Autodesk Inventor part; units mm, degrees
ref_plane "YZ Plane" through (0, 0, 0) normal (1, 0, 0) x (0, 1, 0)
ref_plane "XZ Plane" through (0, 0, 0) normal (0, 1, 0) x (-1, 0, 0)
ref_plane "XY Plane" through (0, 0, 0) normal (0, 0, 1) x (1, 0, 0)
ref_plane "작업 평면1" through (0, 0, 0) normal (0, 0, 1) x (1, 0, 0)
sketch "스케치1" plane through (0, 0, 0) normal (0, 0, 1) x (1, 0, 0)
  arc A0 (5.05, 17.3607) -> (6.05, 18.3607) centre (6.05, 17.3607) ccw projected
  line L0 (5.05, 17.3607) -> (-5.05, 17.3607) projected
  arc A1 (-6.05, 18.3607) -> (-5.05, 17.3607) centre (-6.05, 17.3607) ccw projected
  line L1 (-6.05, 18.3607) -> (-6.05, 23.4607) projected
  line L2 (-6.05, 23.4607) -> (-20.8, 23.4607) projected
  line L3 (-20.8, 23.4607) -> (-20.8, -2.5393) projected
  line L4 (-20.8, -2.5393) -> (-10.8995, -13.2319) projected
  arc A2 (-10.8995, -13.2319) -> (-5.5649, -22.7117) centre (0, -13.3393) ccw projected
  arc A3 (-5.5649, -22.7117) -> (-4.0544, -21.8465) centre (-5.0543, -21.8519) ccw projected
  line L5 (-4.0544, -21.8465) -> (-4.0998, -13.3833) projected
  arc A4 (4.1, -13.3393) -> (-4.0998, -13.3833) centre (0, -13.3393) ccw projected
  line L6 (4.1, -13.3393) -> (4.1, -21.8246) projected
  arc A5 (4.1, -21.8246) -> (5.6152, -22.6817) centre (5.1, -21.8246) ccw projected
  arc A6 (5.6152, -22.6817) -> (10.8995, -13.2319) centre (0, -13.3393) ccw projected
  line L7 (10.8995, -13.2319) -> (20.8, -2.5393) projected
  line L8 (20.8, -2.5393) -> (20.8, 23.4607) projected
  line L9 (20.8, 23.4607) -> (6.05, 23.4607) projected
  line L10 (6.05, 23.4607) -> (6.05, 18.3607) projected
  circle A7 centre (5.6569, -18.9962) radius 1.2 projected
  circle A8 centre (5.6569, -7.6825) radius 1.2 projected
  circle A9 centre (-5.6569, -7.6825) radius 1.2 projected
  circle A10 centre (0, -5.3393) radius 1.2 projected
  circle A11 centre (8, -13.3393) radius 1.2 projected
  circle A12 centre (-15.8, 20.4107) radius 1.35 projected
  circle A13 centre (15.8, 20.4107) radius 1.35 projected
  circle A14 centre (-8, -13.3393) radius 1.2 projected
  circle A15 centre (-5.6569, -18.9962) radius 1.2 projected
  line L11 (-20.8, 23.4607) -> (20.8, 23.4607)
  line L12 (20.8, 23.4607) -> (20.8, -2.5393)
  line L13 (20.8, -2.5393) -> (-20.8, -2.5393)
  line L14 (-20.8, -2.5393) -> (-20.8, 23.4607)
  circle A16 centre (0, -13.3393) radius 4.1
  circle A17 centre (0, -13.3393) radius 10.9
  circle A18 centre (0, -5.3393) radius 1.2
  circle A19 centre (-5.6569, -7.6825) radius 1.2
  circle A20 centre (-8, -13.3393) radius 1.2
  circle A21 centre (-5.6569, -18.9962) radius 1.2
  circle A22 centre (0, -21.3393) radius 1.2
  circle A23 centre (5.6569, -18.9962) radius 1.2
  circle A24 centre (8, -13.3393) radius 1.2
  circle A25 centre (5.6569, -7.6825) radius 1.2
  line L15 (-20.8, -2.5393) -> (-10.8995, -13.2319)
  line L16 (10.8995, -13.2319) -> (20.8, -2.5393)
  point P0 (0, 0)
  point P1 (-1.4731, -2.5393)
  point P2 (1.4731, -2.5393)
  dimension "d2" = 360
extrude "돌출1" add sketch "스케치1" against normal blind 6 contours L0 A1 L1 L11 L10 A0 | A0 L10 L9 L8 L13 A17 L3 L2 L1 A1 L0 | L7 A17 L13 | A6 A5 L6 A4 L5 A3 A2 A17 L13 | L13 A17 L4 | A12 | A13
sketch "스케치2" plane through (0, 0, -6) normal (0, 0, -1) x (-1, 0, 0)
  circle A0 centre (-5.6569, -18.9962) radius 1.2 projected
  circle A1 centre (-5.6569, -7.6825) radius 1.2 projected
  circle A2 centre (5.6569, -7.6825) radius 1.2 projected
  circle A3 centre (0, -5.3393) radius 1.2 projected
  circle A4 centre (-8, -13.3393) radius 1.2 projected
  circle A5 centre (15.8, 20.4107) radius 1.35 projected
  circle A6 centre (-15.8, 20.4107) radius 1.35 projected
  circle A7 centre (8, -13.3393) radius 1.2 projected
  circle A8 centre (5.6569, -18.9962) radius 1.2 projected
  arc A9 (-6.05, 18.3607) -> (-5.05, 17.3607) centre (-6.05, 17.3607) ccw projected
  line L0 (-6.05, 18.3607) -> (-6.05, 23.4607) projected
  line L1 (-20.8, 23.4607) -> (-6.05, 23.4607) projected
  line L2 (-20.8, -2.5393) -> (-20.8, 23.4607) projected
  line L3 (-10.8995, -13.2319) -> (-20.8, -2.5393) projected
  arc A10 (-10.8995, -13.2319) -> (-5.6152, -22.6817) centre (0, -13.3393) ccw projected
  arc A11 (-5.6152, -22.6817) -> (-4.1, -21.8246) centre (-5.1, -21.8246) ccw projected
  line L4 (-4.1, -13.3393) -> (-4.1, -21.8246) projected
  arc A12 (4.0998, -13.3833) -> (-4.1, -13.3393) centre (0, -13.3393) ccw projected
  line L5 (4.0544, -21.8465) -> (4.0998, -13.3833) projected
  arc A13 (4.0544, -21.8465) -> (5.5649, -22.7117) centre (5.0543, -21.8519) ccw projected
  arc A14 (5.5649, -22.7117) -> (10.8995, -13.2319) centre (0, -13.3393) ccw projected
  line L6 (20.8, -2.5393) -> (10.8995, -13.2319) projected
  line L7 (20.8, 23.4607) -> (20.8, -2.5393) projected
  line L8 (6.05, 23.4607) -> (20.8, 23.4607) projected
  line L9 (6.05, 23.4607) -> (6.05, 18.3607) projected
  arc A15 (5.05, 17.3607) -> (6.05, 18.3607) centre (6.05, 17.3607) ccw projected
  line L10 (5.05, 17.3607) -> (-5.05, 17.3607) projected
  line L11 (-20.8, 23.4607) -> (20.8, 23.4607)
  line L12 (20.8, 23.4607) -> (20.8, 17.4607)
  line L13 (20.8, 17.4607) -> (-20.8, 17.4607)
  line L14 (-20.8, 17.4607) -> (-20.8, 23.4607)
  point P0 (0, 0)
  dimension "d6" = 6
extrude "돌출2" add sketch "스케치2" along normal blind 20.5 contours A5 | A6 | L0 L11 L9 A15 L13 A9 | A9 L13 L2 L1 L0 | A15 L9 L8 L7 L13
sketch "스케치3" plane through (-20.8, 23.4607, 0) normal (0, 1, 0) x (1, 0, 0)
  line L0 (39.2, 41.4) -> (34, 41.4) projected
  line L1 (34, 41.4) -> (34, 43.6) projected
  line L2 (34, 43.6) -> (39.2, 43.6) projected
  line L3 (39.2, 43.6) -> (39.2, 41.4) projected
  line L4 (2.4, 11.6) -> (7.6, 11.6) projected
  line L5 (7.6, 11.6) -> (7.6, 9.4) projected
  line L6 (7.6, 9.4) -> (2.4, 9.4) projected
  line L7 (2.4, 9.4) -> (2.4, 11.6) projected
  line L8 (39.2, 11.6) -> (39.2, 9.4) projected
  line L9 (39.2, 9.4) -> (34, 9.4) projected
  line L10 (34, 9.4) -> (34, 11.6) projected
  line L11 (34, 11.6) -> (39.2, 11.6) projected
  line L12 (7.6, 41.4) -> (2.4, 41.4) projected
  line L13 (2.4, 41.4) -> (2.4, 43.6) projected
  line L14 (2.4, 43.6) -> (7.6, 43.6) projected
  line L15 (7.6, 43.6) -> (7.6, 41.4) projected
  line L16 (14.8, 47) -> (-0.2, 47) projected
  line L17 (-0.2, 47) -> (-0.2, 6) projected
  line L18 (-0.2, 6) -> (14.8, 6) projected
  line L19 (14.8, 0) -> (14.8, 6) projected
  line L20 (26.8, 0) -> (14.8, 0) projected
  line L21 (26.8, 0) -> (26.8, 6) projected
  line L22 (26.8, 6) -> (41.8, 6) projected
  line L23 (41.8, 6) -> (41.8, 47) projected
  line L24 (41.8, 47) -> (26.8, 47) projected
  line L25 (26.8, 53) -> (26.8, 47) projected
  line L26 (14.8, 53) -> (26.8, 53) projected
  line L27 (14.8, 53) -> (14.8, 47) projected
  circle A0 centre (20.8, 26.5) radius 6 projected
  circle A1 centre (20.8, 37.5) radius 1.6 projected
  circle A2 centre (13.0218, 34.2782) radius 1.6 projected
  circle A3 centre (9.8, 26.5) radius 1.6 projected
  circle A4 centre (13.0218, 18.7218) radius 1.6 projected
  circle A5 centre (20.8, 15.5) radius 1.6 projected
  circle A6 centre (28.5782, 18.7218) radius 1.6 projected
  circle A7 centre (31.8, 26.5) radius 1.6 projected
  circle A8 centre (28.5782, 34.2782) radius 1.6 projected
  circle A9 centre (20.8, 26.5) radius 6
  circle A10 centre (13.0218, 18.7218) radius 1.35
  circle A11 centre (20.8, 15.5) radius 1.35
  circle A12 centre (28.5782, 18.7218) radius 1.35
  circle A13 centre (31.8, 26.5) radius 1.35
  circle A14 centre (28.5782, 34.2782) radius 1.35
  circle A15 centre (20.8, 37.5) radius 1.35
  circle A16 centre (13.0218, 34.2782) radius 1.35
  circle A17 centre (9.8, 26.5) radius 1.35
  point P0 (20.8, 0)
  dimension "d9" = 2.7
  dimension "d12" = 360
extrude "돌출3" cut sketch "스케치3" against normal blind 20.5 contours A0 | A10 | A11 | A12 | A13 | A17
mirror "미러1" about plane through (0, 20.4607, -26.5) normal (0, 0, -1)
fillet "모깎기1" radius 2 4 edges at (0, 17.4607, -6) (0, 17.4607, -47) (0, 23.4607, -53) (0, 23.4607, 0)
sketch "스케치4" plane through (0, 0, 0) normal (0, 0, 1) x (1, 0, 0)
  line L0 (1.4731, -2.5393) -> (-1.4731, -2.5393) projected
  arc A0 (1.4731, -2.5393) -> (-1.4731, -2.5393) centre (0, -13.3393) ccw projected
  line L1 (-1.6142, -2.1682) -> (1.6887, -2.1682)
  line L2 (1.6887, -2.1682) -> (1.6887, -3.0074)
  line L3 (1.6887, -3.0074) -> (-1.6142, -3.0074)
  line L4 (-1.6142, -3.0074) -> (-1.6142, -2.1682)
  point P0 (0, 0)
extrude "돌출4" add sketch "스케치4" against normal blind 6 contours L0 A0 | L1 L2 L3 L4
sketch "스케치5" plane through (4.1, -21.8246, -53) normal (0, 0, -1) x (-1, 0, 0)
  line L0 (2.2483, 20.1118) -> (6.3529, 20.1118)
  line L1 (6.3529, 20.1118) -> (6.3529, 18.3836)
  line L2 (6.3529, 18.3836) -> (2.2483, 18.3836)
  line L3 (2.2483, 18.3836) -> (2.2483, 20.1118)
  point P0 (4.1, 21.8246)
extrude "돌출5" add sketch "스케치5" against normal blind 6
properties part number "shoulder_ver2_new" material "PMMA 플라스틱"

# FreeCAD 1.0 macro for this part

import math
import FreeCAD as App
import Part
import Sketcher
from FreeCAD import Vector
Q = App.Units.Quantity


def edges_at(feature, points):
    """Names of the edges that pass closest to the given points."""
    edges = feature.Shape.Edges
    near = lambda p: min(range(len(edges)), key=lambda i: edges[i].distToShape(Part.Vertex(*p))[0])
    return sorted({f"Edge{near(p) + 1}" for p in points})


def add_polygon(sketch, points):
    """Adds a closed chain of lines whose ends are joined by coincident constraints."""
    first, n = sketch.GeometryCount, len(points)
    for a, b in zip(points, points[1:] + points[:1]):
        sketch.addGeometry(Part.LineSegment(App.Vector(*a, 0), App.Vector(*b, 0)), False)
    for i in range(n):
        sketch.addConstraint(Sketcher.Constraint("Coincident", first + i, 2, first + (i + 1) % n, 1))

doc = App.newDocument("Part")
body = doc.addObject("PartDesign::Body", "Body")

sketch1 = body.newObject("Sketcher::SketchObject", "Sketch")
sketch1.AttachmentSupport = (doc.getObject("XY_Plane"), [""])
sketch1.MapMode = "FlatFace"
sketch1.addGeometry([
    Part.LineSegment(Vector(-20.8, 23.5, 0), Vector(-20.8, -2.5, 0)),
    Part.LineSegment(Vector(-20.8, -2.5, 0), Vector(-10.9, -13.2, 0)),
    Part.ArcOfCircle(Part.Circle(Vector(0, -13.3, 0), Vector(0, 0, 1), 10.9), math.radians(179), math.radians(239)),
    Part.ArcOfCircle(Part.Circle(Vector(-5.1, -21.9, 0), Vector(0, 0, 1), 1), math.radians(-121), math.radians(0)),
    Part.LineSegment(Vector(-4.1, -21.8, 0), Vector(-4.1, -13.4, 0)),
    Part.ArcOfCircle(Part.Circle(Vector(0, -13.3, 0), Vector(0, 0, 1), 4.1), math.radians(0), math.radians(181)),
    Part.LineSegment(Vector(4.1, -13.3, 0), Vector(4.1, -21.8, 0)),
    Part.ArcOfCircle(Part.Circle(Vector(5.1, -21.8, 0), Vector(0, 0, 1), 1), math.radians(180), math.radians(301)),
    Part.ArcOfCircle(Part.Circle(Vector(0, -13.3, 0), Vector(0, 0, 1), 10.9), math.radians(-59), math.radians(1)),
    Part.LineSegment(Vector(10.9, -13.2, 0), Vector(20.8, -2.5, 0)),
    Part.LineSegment(Vector(20.8, -2.5, 0), Vector(20.8, 23.5, 0)),
    Part.LineSegment(Vector(20.8, 23.5, 0), Vector(-20.8, 23.5, 0)),
    Part.ArcOfCircle(Part.Circle(Vector(0, -13.3, 0), Vector(0, 0, 1), 10.9), math.radians(82.23), math.radians(97.77)),
    Part.LineSegment(Vector(1.5, -2.5, 0), Vector(-1.5, -2.5, 0)),
    Part.Circle(Vector(8, -13.3, 0), Vector(0, 0, 1), 1.2),
    Part.Circle(Vector(5.7, -7.7, 0), Vector(0, 0, 1), 1.2),
    Part.Circle(Vector(-5.7, -19, 0), Vector(0, 0, 1), 1.2),
    Part.Circle(Vector(-8, -13.3, 0), Vector(0, 0, 1), 1.2),
    Part.Circle(Vector(-5.7, -7.7, 0), Vector(0, 0, 1), 1.2),
    Part.Circle(Vector(0, -5.3, 0), Vector(0, 0, 1), 1.2),
    Part.Circle(Vector(5.7, -19, 0), Vector(0, 0, 1), 1.2),
], False)
sketch1.addConstraint([
    Sketcher.Constraint("Coincident", 0, 2, 1, 1),
    Sketcher.Constraint("Coincident", 1, 2, 2, 1),
    Sketcher.Constraint("Tangent", 2, 2, 3, 1),
    Sketcher.Constraint("Tangent", 3, 2, 4, 1),
    Sketcher.Constraint("Coincident", 4, 2, 5, 2),
    Sketcher.Constraint("Tangent", 5, 1, 6, 1),
    Sketcher.Constraint("Tangent", 6, 2, 7, 1),
    Sketcher.Constraint("Tangent", 7, 2, 8, 1),
    Sketcher.Constraint("Coincident", 8, 2, 9, 1),
    Sketcher.Constraint("Coincident", 9, 2, 10, 1),
    Sketcher.Constraint("Coincident", 10, 2, 11, 1),
    Sketcher.Constraint("Coincident", 11, 2, 0, 1),
    Sketcher.Constraint("Coincident", 12, 1, 13, 1),
    Sketcher.Constraint("Coincident", 13, 2, 12, 2),
    Sketcher.Constraint("Vertical", 0),
    Sketcher.Constraint("Vertical", 6),
    Sketcher.Constraint("Vertical", 10),
    Sketcher.Constraint("Horizontal", 11),
    Sketcher.Constraint("Horizontal", 13),
    Sketcher.Constraint("Coincident", 5, 3, 2, 3),
    Sketcher.Constraint("Coincident", 8, 3, 2, 3),
    Sketcher.Constraint("Coincident", 12, 3, 2, 3),
    Sketcher.Constraint("Equal", 3, 7),
    Sketcher.Constraint("Equal", 2, 8),
    Sketcher.Constraint("Equal", 8, 12),
    Sketcher.Constraint("Equal", 14, 15),
    Sketcher.Constraint("Equal", 15, 16),
    Sketcher.Constraint("Equal", 16, 17),
    Sketcher.Constraint("Equal", 17, 18),
    Sketcher.Constraint("Equal", 18, 19),
    Sketcher.Constraint("Equal", 19, 20),
    Sketcher.Constraint("Symmetric", 14, 3, 17, 3, -2),
    Sketcher.Constraint("Symmetric", 15, 3, 18, 3, -2),
    Sketcher.Constraint("Symmetric", 16, 3, 20, 3, -2),
    Sketcher.Constraint("Symmetric", 1, 2, 8, 2, -2),
    Sketcher.Constraint("Symmetric", 0, 2, 9, 2, -2),
    Sketcher.Constraint("PointOnObject", 19, 3, -2),
    Sketcher.Constraint("Horizontal", 12, 3, 14, 3),
    Sketcher.Constraint("Horizontal", 9, 2, 12, 1),
    Sketcher.Constraint("Vertical", 16, 3, 18, 3),
    Sketcher.Constraint("Radius", 3, Q("1 mm")),
    Sketcher.Constraint("Diameter", 14, Q("2.4 mm")),
    Sketcher.Constraint("Radius", 2, Q("10.9 mm")),
    Sketcher.Constraint("Radius", 5, Q("4.1 mm")),
    Sketcher.Constraint("DistanceY", 0, 2, 0, 1, Q("26 mm")),
    Sketcher.Constraint("DistanceX", 11, 2, 11, 1, Q("41.6 mm")),
    Sketcher.Constraint("DistanceX", -1, 1, 14, 3, Q("8 mm")),
    Sketcher.Constraint("DistanceY", 2, 3, 19, 3, Q("8 mm")),
    Sketcher.Constraint("DistanceY", 17, 3, 0, 2, Q("10.8 mm")),
    Sketcher.Constraint("DistanceY", 3, 3, 1, 2, Q("8.62 mm")),
    Sketcher.Constraint("DistanceX", 18, 3, 12, 1, Q("7.13 mm")),
    Sketcher.Constraint("DistanceY", 3, 3, -1, 1, Q("21.852 mm")),
    Sketcher.Constraint("DistanceX", 2, 2, -1, 1, Q("5.565 mm")),
    Sketcher.Constraint("DistanceY", 16, 3, 2, 3, Q("5.657 mm")),
    Sketcher.Constraint("DistanceY", 4, 2, 17, 3, Q("0.044 mm")),
    Sketcher.Constraint("DistanceY", 15, 3, -1, 1, Q("7.6825 mm")),
])
pad1 = body.newObject("PartDesign::Pad", "Pad")
pad1.Profile = sketch1
pad1.Length = 6
pad1.Reversed = True

sketch2 = body.newObject("Sketcher::SketchObject", "Sketch001")
sketch2.AttachmentSupport = (doc.getObject("XY_Plane"), [""])
sketch2.MapMode = "FlatFace"
sketch2.AttachmentOffset = App.Placement(Vector(0, 0, -6), App.Rotation())
add_polygon(sketch2, [(-21, 23), (21, 23), (21, 17), (-21, 17)])
sketch2.addConstraint([
    Sketcher.Constraint("Horizontal", 0),
    Sketcher.Constraint("Vertical", 1),
    Sketcher.Constraint("Horizontal", 2),
    Sketcher.Constraint("Vertical", 3),
    Sketcher.Constraint("DistanceY", 1, 2, 1, 1, Q("6 mm")),
    Sketcher.Constraint("DistanceX", 0, 1, 0, 2, Q("41.6 mm")),
    Sketcher.Constraint("DistanceX", -1, 1, 0, 2, Q("20.8 mm")),
    Sketcher.Constraint("DistanceY", -1, 1, 0, 2, Q("23.4607 mm")),
])
pad2 = body.newObject("PartDesign::Pad", "Pad001")
pad2.Profile = sketch2
pad2.Length = 20.5
pad2.Reversed = True

sketch3 = body.newObject("Sketcher::SketchObject", "Sketch002")
sketch3.AttachmentSupport = (doc.getObject("XZ_Plane"), [""])
sketch3.MapMode = "FlatFace"
sketch3.AttachmentOffset = App.Placement(Vector(0, 0, -23.4607), App.Rotation())
sketch3.addGeometry([
    Part.Circle(Vector(0, -26.5, 0), Vector(0, 0, 1), 6),
    Part.Circle(Vector(-7.8, -18.7, 0), Vector(0, 0, 1), 1.4),
    Part.Circle(Vector(0, -15.5, 0), Vector(0, 0, 1), 1.4),
    Part.Circle(Vector(7.8, -18.7, 0), Vector(0, 0, 1), 1.4),
    Part.Circle(Vector(11, -26.5, 0), Vector(0, 0, 1), 1.4),
    Part.Circle(Vector(-11, -26.5, 0), Vector(0, 0, 1), 1.4),
], False)
sketch3.addConstraint([
    Sketcher.Constraint("Equal", 1, 2),
    Sketcher.Constraint("Equal", 2, 3),
    Sketcher.Constraint("Equal", 3, 4),
    Sketcher.Constraint("Equal", 4, 5),
    Sketcher.Constraint("Symmetric", 1, 3, 3, 3, -2),
    Sketcher.Constraint("Symmetric", 4, 3, 5, 3, -2),
    Sketcher.Constraint("PointOnObject", 0, 3, -2),
    Sketcher.Constraint("PointOnObject", 2, 3, -2),
    Sketcher.Constraint("Horizontal", 0, 3, 4, 3),
    Sketcher.Constraint("Diameter", 1, Q("2.7 mm")),
    Sketcher.Constraint("Diameter", 0, Q("12 mm")),
    Sketcher.Constraint("DistanceX", -1, 1, 4, 3, Q("11 mm")),
    Sketcher.Constraint("DistanceY", 0, 3, 2, 3, Q("11 mm")),
    Sketcher.Constraint("DistanceY", 0, 3, -1, 1, Q("26.5 mm")),
    Sketcher.Constraint("DistanceX", 1, 3, -1, 1, Q("7.7782 mm")),
    Sketcher.Constraint("DistanceY", 1, 3, -1, 1, Q("18.7218 mm")),
])
pocket1 = body.newObject("PartDesign::Pocket", "Pocket")
pocket1.Profile = sketch3
pocket1.Length = 20.5
pocket1.Reversed = True
doc.recompute()

datumplane = body.newObject("PartDesign::Plane", "DatumPlane")
datumplane.AttachmentSupport = (doc.getObject("XY_Plane"), [""])
datumplane.MapMode = "FlatFace"
datumplane.AttachmentOffset = App.Placement(Vector(0, 0, -26.5), App.Rotation())
mirrored = body.newObject("PartDesign::Mirrored", "Mirrored")
mirrored.TransformMode = "Transform body"
mirrored.MirrorPlane = (datumplane, [""])
body.Tip = mirrored
doc.recompute()

fillet = body.newObject("PartDesign::Fillet", "Fillet")
fillet.Base = (mirrored, edges_at(mirrored, [
    (0, 17.461, -6),
    (0, 17.461, -47),
    (0, 23.461, -53),
    (0, 23.461, 0),
]))
fillet.Radius = 2

sketch4 = body.newObject("Sketcher::SketchObject", "Sketch003")
sketch4.AttachmentSupport = (doc.getObject("XY_Plane"), [""])
sketch4.MapMode = "FlatFace"
add_polygon(sketch4, [(1.7, -2.2), (-1.6, -2.2), (-1.6, -3), (1.7, -3)])
sketch4.addConstraint([
    Sketcher.Constraint("Horizontal", 0),
    Sketcher.Constraint("Vertical", 1),
    Sketcher.Constraint("Horizontal", 2),
    Sketcher.Constraint("Vertical", 3),
    Sketcher.Constraint("DistanceX", 0, 2, 0, 1, Q("3.303 mm")),
    Sketcher.Constraint("DistanceY", 1, 2, 1, 1, Q("0.8392 mm")),
    Sketcher.Constraint("DistanceX", 0, 2, -1, 1, Q("1.6142 mm")),
    Sketcher.Constraint("DistanceY", 0, 2, -1, 1, Q("2.1682 mm")),
])
pad3 = body.newObject("PartDesign::Pad", "Pad002")
pad3.Profile = sketch4
pad3.Length = 6
pad3.Reversed = True

sketch5 = body.newObject("Sketcher::SketchObject", "Sketch004")
sketch5.AttachmentSupport = (doc.getObject("XY_Plane"), [""])
sketch5.MapMode = "FlatFace"
sketch5.AttachmentOffset = App.Placement(Vector(0, 0, -53), App.Rotation())
add_polygon(sketch5, [(-2.3, -1.7), (1.9, -1.7), (1.9, -3.4), (-2.3, -3.4)])
sketch5.addConstraint([
    Sketcher.Constraint("Horizontal", 0),
    Sketcher.Constraint("Vertical", 1),
    Sketcher.Constraint("Horizontal", 2),
    Sketcher.Constraint("Vertical", 3),
    Sketcher.Constraint("DistanceX", 0, 1, 0, 2, Q("4.1046 mm")),
    Sketcher.Constraint("DistanceY", 1, 2, 1, 1, Q("1.7282 mm")),
    Sketcher.Constraint("DistanceY", 1, 2, -1, 1, Q("3.441 mm")),
    Sketcher.Constraint("DistanceX", 2, 2, -1, 1, Q("2.253 mm")),
])
pad4 = body.newObject("PartDesign::Pad", "Pad003")
pad4.Profile = sketch5
pad4.Length = 6

doc.recompute()
